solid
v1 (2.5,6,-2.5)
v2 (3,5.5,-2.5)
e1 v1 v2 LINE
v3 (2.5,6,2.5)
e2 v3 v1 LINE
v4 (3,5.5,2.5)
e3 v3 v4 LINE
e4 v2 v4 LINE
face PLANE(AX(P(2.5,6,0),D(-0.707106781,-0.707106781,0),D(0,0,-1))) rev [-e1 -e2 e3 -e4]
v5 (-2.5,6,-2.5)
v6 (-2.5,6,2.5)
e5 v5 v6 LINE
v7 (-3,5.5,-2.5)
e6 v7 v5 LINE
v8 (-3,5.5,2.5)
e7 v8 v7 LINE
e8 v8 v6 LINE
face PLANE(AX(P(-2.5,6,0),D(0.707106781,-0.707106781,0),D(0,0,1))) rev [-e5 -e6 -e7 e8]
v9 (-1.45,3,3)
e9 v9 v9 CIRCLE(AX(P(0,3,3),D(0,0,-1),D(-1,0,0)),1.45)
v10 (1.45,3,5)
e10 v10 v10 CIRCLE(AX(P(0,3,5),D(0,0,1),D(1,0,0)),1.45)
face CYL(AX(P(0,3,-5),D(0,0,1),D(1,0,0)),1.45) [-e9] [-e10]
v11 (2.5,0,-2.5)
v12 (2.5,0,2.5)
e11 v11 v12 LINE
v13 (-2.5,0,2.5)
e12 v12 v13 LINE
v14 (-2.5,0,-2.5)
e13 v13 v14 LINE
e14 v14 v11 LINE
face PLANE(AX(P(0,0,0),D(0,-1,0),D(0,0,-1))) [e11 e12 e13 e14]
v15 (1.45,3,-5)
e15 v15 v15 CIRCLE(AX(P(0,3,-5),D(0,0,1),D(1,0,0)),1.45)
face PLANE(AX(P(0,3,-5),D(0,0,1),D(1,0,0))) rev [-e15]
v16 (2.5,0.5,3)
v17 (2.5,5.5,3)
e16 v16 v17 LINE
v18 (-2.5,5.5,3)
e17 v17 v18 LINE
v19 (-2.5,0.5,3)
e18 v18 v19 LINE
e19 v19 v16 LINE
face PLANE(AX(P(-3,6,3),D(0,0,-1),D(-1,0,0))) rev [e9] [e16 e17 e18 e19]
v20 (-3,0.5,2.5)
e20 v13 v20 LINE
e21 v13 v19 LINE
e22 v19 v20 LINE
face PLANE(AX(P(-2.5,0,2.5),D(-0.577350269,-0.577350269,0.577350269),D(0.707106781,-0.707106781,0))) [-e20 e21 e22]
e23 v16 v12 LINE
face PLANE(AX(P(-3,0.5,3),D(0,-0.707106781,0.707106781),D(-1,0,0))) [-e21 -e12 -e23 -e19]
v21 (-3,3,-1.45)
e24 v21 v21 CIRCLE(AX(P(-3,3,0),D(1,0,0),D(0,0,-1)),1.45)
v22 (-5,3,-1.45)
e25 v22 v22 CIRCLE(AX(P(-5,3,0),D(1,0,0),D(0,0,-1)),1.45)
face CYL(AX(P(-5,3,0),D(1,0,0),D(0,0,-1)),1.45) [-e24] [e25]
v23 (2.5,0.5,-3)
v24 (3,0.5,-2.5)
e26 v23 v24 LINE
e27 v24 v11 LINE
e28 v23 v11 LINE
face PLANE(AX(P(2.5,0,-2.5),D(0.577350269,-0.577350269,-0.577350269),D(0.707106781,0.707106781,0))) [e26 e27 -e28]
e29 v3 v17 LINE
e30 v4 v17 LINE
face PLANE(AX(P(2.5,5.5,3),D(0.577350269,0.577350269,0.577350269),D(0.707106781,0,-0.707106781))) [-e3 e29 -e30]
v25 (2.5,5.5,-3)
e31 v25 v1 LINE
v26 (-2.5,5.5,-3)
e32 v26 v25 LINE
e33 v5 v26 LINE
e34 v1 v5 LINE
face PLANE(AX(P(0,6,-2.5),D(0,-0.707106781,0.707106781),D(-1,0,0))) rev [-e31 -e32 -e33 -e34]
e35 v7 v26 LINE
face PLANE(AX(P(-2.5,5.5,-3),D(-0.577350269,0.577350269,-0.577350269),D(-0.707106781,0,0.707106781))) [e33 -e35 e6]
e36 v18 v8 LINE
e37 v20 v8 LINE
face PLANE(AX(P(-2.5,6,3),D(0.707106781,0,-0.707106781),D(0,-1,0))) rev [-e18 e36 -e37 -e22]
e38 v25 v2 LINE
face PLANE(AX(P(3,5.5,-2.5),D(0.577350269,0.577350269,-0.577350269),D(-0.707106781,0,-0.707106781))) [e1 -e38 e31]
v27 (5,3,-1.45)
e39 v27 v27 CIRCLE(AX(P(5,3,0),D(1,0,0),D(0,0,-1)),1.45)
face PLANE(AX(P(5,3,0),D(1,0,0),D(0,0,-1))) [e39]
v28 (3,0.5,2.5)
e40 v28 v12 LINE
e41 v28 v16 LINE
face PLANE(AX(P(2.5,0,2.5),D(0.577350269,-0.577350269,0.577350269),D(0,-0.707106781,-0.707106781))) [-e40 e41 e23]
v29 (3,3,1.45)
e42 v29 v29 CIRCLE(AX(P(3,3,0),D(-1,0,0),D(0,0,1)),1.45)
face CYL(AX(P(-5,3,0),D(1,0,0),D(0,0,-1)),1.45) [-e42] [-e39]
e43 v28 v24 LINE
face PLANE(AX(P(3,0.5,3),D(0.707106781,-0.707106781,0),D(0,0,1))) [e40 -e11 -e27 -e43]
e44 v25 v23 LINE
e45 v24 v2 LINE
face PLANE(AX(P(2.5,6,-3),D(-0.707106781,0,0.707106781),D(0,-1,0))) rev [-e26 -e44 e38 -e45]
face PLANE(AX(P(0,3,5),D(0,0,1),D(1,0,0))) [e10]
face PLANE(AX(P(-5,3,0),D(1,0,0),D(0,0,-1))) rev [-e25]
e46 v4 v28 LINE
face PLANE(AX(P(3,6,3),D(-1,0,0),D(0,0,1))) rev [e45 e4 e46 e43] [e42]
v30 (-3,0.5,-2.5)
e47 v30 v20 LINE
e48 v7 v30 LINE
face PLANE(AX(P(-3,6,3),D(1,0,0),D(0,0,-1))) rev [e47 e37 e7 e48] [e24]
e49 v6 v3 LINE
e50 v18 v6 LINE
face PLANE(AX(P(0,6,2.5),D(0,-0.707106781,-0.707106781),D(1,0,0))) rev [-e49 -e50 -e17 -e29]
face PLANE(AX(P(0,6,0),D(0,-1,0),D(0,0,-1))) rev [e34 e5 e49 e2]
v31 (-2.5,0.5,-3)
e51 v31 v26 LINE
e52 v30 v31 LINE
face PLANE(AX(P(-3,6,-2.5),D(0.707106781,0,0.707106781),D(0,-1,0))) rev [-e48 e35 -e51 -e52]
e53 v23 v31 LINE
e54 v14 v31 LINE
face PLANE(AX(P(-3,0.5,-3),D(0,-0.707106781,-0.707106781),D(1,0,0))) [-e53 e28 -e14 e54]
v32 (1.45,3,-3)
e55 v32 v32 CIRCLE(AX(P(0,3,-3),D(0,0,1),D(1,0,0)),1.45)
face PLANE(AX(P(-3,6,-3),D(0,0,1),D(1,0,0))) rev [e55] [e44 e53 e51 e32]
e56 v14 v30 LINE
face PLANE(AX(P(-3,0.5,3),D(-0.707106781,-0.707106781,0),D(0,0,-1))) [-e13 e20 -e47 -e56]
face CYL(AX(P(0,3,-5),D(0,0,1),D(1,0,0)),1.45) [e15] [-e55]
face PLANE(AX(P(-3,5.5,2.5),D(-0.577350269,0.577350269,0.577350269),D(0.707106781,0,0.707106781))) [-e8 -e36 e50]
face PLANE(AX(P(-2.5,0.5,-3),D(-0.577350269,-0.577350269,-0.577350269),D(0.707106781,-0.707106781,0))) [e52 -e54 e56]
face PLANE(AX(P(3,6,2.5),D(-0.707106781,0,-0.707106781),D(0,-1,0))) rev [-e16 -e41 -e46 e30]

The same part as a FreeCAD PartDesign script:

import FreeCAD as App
import Part
import Sketcher

V = App.Vector


def edges_at(feature, points):
    """Names of the edges that pass closest to the given points."""
    edges = feature.Shape.Edges
    near = lambda p: min(range(len(edges)), key=lambda i: edges[i].distToShape(Part.Vertex(*p))[0])
    return sorted({f"Edge{near(p) + 1}" for p in points})

doc = App.newDocument("Part")
body = doc.addObject("PartDesign::Body", "Body")

# Sketch on XZ plane
sketch1 = doc.addObject("Sketcher::SketchObject", "Sketch")
body.addObject(sketch1)
sketch1.AttachmentSupport = (doc.XZ_Plane, [""])
sketch1.MapMode = "FlatFace"
sketch1.addGeometry(Part.LineSegment(V(-3, -3, 0), V(-3, 3, 0)), False)
sketch1.addGeometry(Part.LineSegment(V(-3, 3, 0), V(3, 3, 0)), False)
sketch1.addGeometry(Part.LineSegment(V(3, 3, 0), V(3, -3, 0)), False)
sketch1.addGeometry(Part.LineSegment(V(3, -3, 0), V(-3, -3, 0)), False)
sketch1.addConstraint(Sketcher.Constraint("Coincident", 0, 2, 1, 1))
sketch1.addConstraint(Sketcher.Constraint("Coincident", 1, 2, 2, 1))
sketch1.addConstraint(Sketcher.Constraint("Coincident", 2, 2, 3, 1))
sketch1.addConstraint(Sketcher.Constraint("Coincident", 3, 2, 0, 1))
sketch1.addConstraint(Sketcher.Constraint("Vertical", 0))
sketch1.addConstraint(Sketcher.Constraint("Horizontal", 1))
sketch1.addConstraint(Sketcher.Constraint("Vertical", 2))
sketch1.addConstraint(Sketcher.Constraint("Horizontal", 3))
sketch1.addConstraint(Sketcher.Constraint("Symmetric", 0, 2, 2, 2, -1, 1))
sketch1.addConstraint(Sketcher.Constraint("Equal", 3, 0))
sketch1.addConstraint(Sketcher.Constraint("DistanceX", 1, 1, 1, 2, 6.0))
pad1 = doc.addObject("PartDesign::Pad", "Pad")
body.addObject(pad1)
pad1.Profile = sketch1
pad1.Length = 6
pad1.Reversed = True

# Sketch on YZ plane
sketch2 = doc.addObject("Sketcher::SketchObject", "Sketch001")
body.addObject(sketch2)
sketch2.AttachmentSupport = (doc.YZ_Plane, [""])
sketch2.MapMode = "FlatFace"
sketch2.AttachmentOffset = App.Placement(V(0, 0, 3), App.Rotation())
sketch2.addGeometry(Part.Circle(V(3, 0, 0), V(0, 0, 1), 1.4), False)
sketch2.addConstraint(Sketcher.Constraint("PointOnObject", 0, 3, -1))
sketch2.addConstraint(Sketcher.Constraint("Diameter", 0, 2.9))
sketch2.addConstraint(Sketcher.Constraint("DistanceX", -1, 1, 0, 3, 3.0))
pad2 = doc.addObject("PartDesign::Pad", "Pad001")
body.addObject(pad2)
pad2.Profile = sketch2
pad2.Type = "TwoLengths"
pad2.Length = 2
pad2.Length2 = 8

# Sketch on XY plane
sketch3 = doc.addObject("Sketcher::SketchObject", "Sketch002")
body.addObject(sketch3)
sketch3.AttachmentSupport = (doc.XY_Plane, [""])
sketch3.MapMode = "FlatFace"
sketch3.AttachmentOffset = App.Placement(V(0, 0, 3), App.Rotation())
sketch3.addGeometry(Part.Circle(V(0, 3, 0), V(0, 0, 1), 1.4), False)
sketch3.addConstraint(Sketcher.Constraint("PointOnObject", 0, 3, -2))
sketch3.addConstraint(Sketcher.Constraint("Diameter", 0, 2.9))
sketch3.addConstraint(Sketcher.Constraint("DistanceY", -1, 1, 0, 3, 3.0))
pad3 = doc.addObject("PartDesign::Pad", "Pad002")
body.addObject(pad3)
pad3.Profile = sketch3
pad3.Type = "TwoLengths"
pad3.Length = 2
pad3.Length2 = 8
doc.recompute()

chamfer = doc.addObject("PartDesign::Chamfer", "Chamfer")
body.addObject(chamfer)
chamfer.Base = (pad3, edges_at(pad3, [
    (-3, 6, 0),
    (0, 6, 3),
    (3, 6, 0),
    (0, 0, 3),
    (-3, 0, 0),
    (0, 0, -3),
    (3, 0, 0),
    (3, 3, 3),
    (-3, 3, 3),
    (-3, 3, -3),
    (3, 3, -3),
    (0, 6, -3),
]))
chamfer.Size = 0.5

doc.recompute()
